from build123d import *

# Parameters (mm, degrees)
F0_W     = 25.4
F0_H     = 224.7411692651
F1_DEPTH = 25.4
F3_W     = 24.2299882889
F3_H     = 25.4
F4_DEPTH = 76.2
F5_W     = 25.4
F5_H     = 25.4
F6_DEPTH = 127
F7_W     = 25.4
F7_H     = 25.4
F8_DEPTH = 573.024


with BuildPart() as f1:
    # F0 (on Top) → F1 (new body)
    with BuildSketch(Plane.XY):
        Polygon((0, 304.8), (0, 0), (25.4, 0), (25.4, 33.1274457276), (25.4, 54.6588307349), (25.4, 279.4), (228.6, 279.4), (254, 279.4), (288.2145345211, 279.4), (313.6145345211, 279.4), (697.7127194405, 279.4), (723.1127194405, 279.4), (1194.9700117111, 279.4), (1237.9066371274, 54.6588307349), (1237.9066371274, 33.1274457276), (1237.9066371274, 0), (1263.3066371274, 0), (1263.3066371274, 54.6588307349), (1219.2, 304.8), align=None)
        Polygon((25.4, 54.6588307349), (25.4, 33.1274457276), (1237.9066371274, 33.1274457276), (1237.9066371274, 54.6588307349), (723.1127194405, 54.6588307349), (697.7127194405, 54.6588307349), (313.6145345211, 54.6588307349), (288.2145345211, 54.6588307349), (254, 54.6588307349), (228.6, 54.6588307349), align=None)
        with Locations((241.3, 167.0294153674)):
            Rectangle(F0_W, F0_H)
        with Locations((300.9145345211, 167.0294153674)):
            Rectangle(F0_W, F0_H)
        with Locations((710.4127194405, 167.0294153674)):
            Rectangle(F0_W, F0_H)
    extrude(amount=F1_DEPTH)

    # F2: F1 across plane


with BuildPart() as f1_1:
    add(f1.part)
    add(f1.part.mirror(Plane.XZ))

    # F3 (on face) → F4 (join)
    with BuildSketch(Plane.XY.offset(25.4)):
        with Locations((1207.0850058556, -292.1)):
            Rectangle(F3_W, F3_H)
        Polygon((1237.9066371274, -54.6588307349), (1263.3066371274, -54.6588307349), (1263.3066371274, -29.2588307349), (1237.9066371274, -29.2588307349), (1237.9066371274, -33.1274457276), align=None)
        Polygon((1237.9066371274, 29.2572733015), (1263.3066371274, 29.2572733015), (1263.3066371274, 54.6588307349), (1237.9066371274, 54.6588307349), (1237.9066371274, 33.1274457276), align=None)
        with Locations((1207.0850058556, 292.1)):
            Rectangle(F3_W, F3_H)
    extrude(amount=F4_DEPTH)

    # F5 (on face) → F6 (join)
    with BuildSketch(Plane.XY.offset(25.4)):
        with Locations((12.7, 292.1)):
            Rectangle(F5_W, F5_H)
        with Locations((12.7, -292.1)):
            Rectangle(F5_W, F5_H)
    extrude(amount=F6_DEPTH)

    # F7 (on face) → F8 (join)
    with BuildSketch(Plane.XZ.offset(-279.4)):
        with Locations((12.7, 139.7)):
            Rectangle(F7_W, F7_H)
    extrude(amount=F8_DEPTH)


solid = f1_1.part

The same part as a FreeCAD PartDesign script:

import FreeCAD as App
import Part
import Sketcher
from FreeCAD import Vector
Q = App.Units.Quantity

doc = App.newDocument("Part")
body = doc.addObject("PartDesign::Body", "Body")

# Sketch on XY plane
sketch1 = body.newObject("Sketcher::SketchObject", "Sketch")
sketch1.AttachmentSupport = (doc.getObject("XY_Plane"), [""])
sketch1.MapMode = "FlatFace"
sketch1.addGeometry(Part.LineSegment(Vector(0, 304.8, 0), Vector(0, 0, 0)), False)
sketch1.addGeometry(Part.LineSegment(Vector(0, 0, 0), Vector(25.4, 0, 0)), False)
sketch1.addGeometry(Part.LineSegment(Vector(25.4, 0, 0), Vector(25.4, 33.127446, 0)), False)
sketch1.addGeometry(Part.LineSegment(Vector(25.4, 33.127446, 0), Vector(1237.906637, 33.127446, 0)), False)
sketch1.addGeometry(Part.LineSegment(Vector(1237.906637, 33.127446, 0), Vector(1237.906637, 0, 0)), False)
sketch1.addGeometry(Part.LineSegment(Vector(1237.906637, 0, 0), Vector(1263.306637, 0, 0)), False)
sketch1.addGeometry(Part.LineSegment(Vector(1263.306637, 0, 0), Vector(1263.306637, 54.658831, 0)), False)
sketch1.addGeometry(Part.LineSegment(Vector(1263.306637, 54.658831, 0), Vector(1219.2, 304.8, 0)), False)
sketch1.addGeometry(Part.LineSegment(Vector(1219.2, 304.8, 0), Vector(0, 304.8, 0)), False)
sketch1.addGeometry(Part.LineSegment(Vector(25.4, 54.658831, 0), Vector(25.4, 279.4, 0)), False)
sketch1.addGeometry(Part.LineSegment(Vector(25.4, 279.4, 0), Vector(228.6, 279.4, 0)), False)
sketch1.addGeometry(Part.LineSegment(Vector(228.6, 279.4, 0), Vector(228.6, 54.658831, 0)), False)
sketch1.addGeometry(Part.LineSegment(Vector(228.6, 54.658831, 0), Vector(25.4, 54.658831, 0)), False)
sketch1.addGeometry(Part.LineSegment(Vector(254, 279.4, 0), Vector(288.214535, 279.4, 0)), False)
sketch1.addGeometry(Part.LineSegment(Vector(288.214535, 279.4, 0), Vector(288.214535, 54.658831, 0)), False)
sketch1.addGeometry(Part.LineSegment(Vector(288.214535, 54.658831, 0), Vector(254, 54.658831, 0)), False)
sketch1.addGeometry(Part.LineSegment(Vector(254, 54.658831, 0), Vector(254, 279.4, 0)), False)
sketch1.addGeometry(Part.LineSegment(Vector(313.614535, 279.4, 0), Vector(697.712719, 279.4, 0)), False)
sketch1.addGeometry(Part.LineSegment(Vector(697.712719, 279.4, 0), Vector(697.712719, 54.658831, 0)), False)
sketch1.addGeometry(Part.LineSegment(Vector(697.712719, 54.658831, 0), Vector(313.614535, 54.658831, 0)), False)
sketch1.addGeometry(Part.LineSegment(Vector(313.614535, 54.658831, 0), Vector(313.614535, 279.4, 0)), False)
sketch1.addGeometry(Part.LineSegment(Vector(723.112719, 279.4, 0), Vector(1194.970012, 279.4, 0)), False)
sketch1.addGeometry(Part.LineSegment(Vector(1194.970012, 279.4, 0), Vector(1237.906637, 54.658831, 0)), False)
sketch1.addGeometry(Part.LineSegment(Vector(1237.906637, 54.658831, 0), Vector(723.112719, 54.658831, 0)), False)
sketch1.addGeometry(Part.LineSegment(Vector(723.112719, 54.658831, 0), Vector(723.112719, 279.4, 0)), False)
sketch1.addConstraint(Sketcher.Constraint("Coincident", 0, 2, 1, 1))
sketch1.addConstraint(Sketcher.Constraint("Coincident", 1, 2, 2, 1))
sketch1.addConstraint(Sketcher.Constraint("Coincident", 2, 2, 3, 1))
sketch1.addConstraint(Sketcher.Constraint("Coincident", 3, 2, 4, 1))
sketch1.addConstraint(Sketcher.Constraint("Coincident", 4, 2, 5, 1))
sketch1.addConstraint(Sketcher.Constraint("Coincident", 5, 2, 6, 1))
sketch1.addConstraint(Sketcher.Constraint("Coincident", 6, 2, 7, 1))
sketch1.addConstraint(Sketcher.Constraint("Coincident", 7, 2, 8, 1))
sketch1.addConstraint(Sketcher.Constraint("Coincident", 8, 2, 0, 1))
sketch1.addConstraint(Sketcher.Constraint("Coincident", 9, 2, 10, 1))
sketch1.addConstraint(Sketcher.Constraint("Coincident", 10, 2, 11, 1))
sketch1.addConstraint(Sketcher.Constraint("Coincident", 11, 2, 12, 1))
sketch1.addConstraint(Sketcher.Constraint("Coincident", 12, 2, 9, 1))
sketch1.addConstraint(Sketcher.Constraint("Coincident", 13, 2, 14, 1))
sketch1.addConstraint(Sketcher.Constraint("Coincident", 14, 2, 15, 1))
sketch1.addConstraint(Sketcher.Constraint("Coincident", 15, 2, 16, 1))
sketch1.addConstraint(Sketcher.Constraint("Coincident", 16, 2, 13, 1))
sketch1.addConstraint(Sketcher.Constraint("Coincident", 17, 2, 18, 1))
sketch1.addConstraint(Sketcher.Constraint("Coincident", 18, 2, 19, 1))
sketch1.addConstraint(Sketcher.Constraint("Coincident", 19, 2, 20, 1))
sketch1.addConstraint(Sketcher.Constraint("Coincident", 20, 2, 17, 1))
sketch1.addConstraint(Sketcher.Constraint("Coincident", 21, 2, 22, 1))
sketch1.addConstraint(Sketcher.Constraint("Coincident", 22, 2, 23, 1))
sketch1.addConstraint(Sketcher.Constraint("Coincident", 23, 2, 24, 1))
sketch1.addConstraint(Sketcher.Constraint("Coincident", 24, 2, 21, 1))
sketch1.addConstraint(Sketcher.Constraint("Vertical", 0))
sketch1.addConstraint(Sketcher.Constraint("Horizontal", 1))
sketch1.addConstraint(Sketcher.Constraint("Vertical", 2))
sketch1.addConstraint(Sketcher.Constraint("Horizontal", 3))
sketch1.addConstraint(Sketcher.Constraint("Vertical", 4))
sketch1.addConstraint(Sketcher.Constraint("Horizontal", 5))
sketch1.addConstraint(Sketcher.Constraint("Vertical", 6))
sketch1.addConstraint(Sketcher.Constraint("Horizontal", 8))
sketch1.addConstraint(Sketcher.Constraint("Vertical", 9))
sketch1.addConstraint(Sketcher.Constraint("Horizontal", 10))
sketch1.addConstraint(Sketcher.Constraint("Vertical", 11))
sketch1.addConstraint(Sketcher.Constraint("Horizontal", 12))
sketch1.addConstraint(Sketcher.Constraint("Horizontal", 13))
sketch1.addConstraint(Sketcher.Constraint("Vertical", 14))
sketch1.addConstraint(Sketcher.Constraint("Horizontal", 15))
sketch1.addConstraint(Sketcher.Constraint("Vertical", 16))
sketch1.addConstraint(Sketcher.Constraint("Horizontal", 17))
sketch1.addConstraint(Sketcher.Constraint("Vertical", 18))
sketch1.addConstraint(Sketcher.Constraint("Horizontal", 19))
sketch1.addConstraint(Sketcher.Constraint("Vertical", 20))
sketch1.addConstraint(Sketcher.Constraint("Horizontal", 21))
sketch1.addConstraint(Sketcher.Constraint("Horizontal", 23))
sketch1.addConstraint(Sketcher.Constraint("Vertical", 24))
sketch1.addConstraint(Sketcher.Constraint("Coincident", 0, 2, -1, 1))
sketch1.addConstraint(Sketcher.Constraint("PointOnObject", 4, 2, -1))
sketch1.addConstraint(Sketcher.Constraint("Horizontal", 6, 2, 11, 2))
sketch1.addConstraint(Sketcher.Constraint("Horizontal", 10, 2, 13, 2))
sketch1.addConstraint(Sketcher.Constraint("Horizontal", 12, 2, 14, 2))
sketch1.addConstraint(Sketcher.Constraint("Horizontal", 16, 2, 17, 2))
sketch1.addConstraint(Sketcher.Constraint("Horizontal", 15, 2, 18, 2))
sketch1.addConstraint(Sketcher.Constraint("Horizontal", 20, 2, 21, 2))
sketch1.addConstraint(Sketcher.Constraint("Horizontal", 19, 2, 22, 2))
sketch1.addConstraint(Sketcher.Constraint("Vertical", 2, 2, 9, 2))
sketch1.addConstraint(Sketcher.Constraint("Vertical", 4, 2, 22, 2))
sketch1.addConstraint(Sketcher.Constraint("Equal", 1, 5))
sketch1.addConstraint(Sketcher.Constraint("DistanceX", 1, 1, 1, 2, Q("1 in")))
sketch1.addConstraint(Sketcher.Constraint("DistanceX", 8, 2, 8, 1, Q("48 in")))
sketch1.addConstraint(Sketcher.Constraint("DistanceX", 10, 1, 10, 2, Q("8 in")))
sketch1.addConstraint(Sketcher.Constraint("DistanceY", 0, 2, 0, 1, Q("12 in")))
sketch1.addConstraint(Sketcher.Constraint("Distance", 7, Q("10 in")))
sketch1.addConstraint(Sketcher.Constraint("DistanceY", -1, 1, 9, 2, Q("11 in")))
sketch1.addConstraint(Sketcher.Constraint("DistanceX", -1, 1, 15, 2, Q("10 in")))
sketch1.addConstraint(Sketcher.Constraint("Angle", 7, Q("100 deg")))
sketch1.addConstraint(Sketcher.Constraint("DistanceX", 14, 2, 19, 2, Q("1 in")))
sketch1.addConstraint(Sketcher.Constraint("DistanceX", 18, 2, 23, 2, Q("1 in")))
sketch1.addConstraint(Sketcher.Constraint("DistanceX", 13, 1, 13, 2, 34.214535))
sketch1.addConstraint(Sketcher.Constraint("DistanceX", 17, 1, 17, 2, 384.098185))
sketch1.addConstraint(Sketcher.Constraint("DistanceX", 21, 1, 21, 2, 471.857292))
sketch1.addConstraint(Sketcher.Constraint("DistanceY", 2, 1, 2, 2, 33.127446))
pad1 = body.newObject("PartDesign::Pad", "Pad")
pad1.Profile = sketch1
pad1.Length = Q("1 in")
body2 = doc.addObject("PartDesign::Body", "Body001")
doc.recompute()

body2.BaseFeature = body
doc.recompute()

mirroring = doc.addObject("Part::Mirroring", "Mirroring")
mirroring.Source = body
mirroring.Base = Vector(0, 0, 0)
mirroring.Normal = Vector(0, -1, 0)
body3 = doc.addObject("PartDesign::Body", "Body002")
body3.BaseFeature = mirroring
boolean = body2.newObject("PartDesign::Boolean", "Boolean")
boolean.Type = "Fuse"
boolean.addObjects([body3])
doc.recompute()

# Sketch on XY plane
sketch2 = body2.newObject("Sketcher::SketchObject", "Sketch001")
sketch2.AttachmentSupport = (doc.getObject("XY_Plane001"), [""])
sketch2.MapMode = "FlatFace"
sketch2.AttachmentOffset = App.Placement(Vector(0, 0, 1 * 25.4), App.Rotation())
sketch2.addGeometry(Part.LineSegment(Vector(1194.970012, -279.4, 0), Vector(1194.970012, -304.8, 0)), False)
sketch2.addGeometry(Part.LineSegment(Vector(1194.970012, -304.8, 0), Vector(1219.2, -304.8, 0)), False)
sketch2.addGeometry(Part.LineSegment(Vector(1219.2, -304.8, 0), Vector(1219.2, -279.4, 0)), False)
sketch2.addGeometry(Part.LineSegment(Vector(1219.2, -279.4, 0), Vector(1194.970012, -279.4, 0)), False)
sketch2.addGeometry(Part.LineSegment(Vector(1237.906637, -54.658831, 0), Vector(1263.306637, -54.658831, 0)), False)
sketch2.addGeometry(Part.LineSegment(Vector(1263.306637, -54.658831, 0), Vector(1263.306637, -29.258831, 0)), False)
sketch2.addGeometry(Part.LineSegment(Vector(1263.306637, -29.258831, 0), Vector(1237.906637, -29.258831, 0)), False)
sketch2.addGeometry(Part.LineSegment(Vector(1237.906637, -29.258831, 0), Vector(1237.906637, -54.658831, 0)), False)
sketch2.addGeometry(Part.LineSegment(Vector(1237.906637, 29.257273, 0), Vector(1263.306637, 29.257273, 0)), False)
sketch2.addGeometry(Part.LineSegment(Vector(1263.306637, 29.257273, 0), Vector(1263.306637, 54.658831, 0)), False)
sketch2.addGeometry(Part.LineSegment(Vector(1263.306637, 54.658831, 0), Vector(1237.906637, 54.658831, 0)), False)
sketch2.addGeometry(Part.LineSegment(Vector(1237.906637, 54.658831, 0), Vector(1237.906637, 29.257273, 0)), False)
sketch2.addGeometry(Part.LineSegment(Vector(1194.970012, 304.8, 0), Vector(1194.970012, 279.4, 0)), False)
sketch2.addGeometry(Part.LineSegment(Vector(1194.970012, 279.4, 0), Vector(1219.2, 279.4, 0)), False)
sketch2.addGeometry(Part.LineSegment(Vector(1219.2, 279.4, 0), Vector(1219.2, 304.8, 0)), False)
sketch2.addGeometry(Part.LineSegment(Vector(1219.2, 304.8, 0), Vector(1194.970012, 304.8, 0)), False)
sketch2.addConstraint(Sketcher.Constraint("Coincident", 0, 2, 1, 1))
sketch2.addConstraint(Sketcher.Constraint("Coincident", 1, 2, 2, 1))
sketch2.addConstraint(Sketcher.Constraint("Coincident", 2, 2, 3, 1))
sketch2.addConstraint(Sketcher.Constraint("Coincident", 3, 2, 0, 1))
sketch2.addConstraint(Sketcher.Constraint("Coincident", 4, 2, 5, 1))
sketch2.addConstraint(Sketcher.Constraint("Coincident", 5, 2, 6, 1))
sketch2.addConstraint(Sketcher.Constraint("Coincident", 6, 2, 7, 1))
sketch2.addConstraint(Sketcher.Constraint("Coincident", 7, 2, 4, 1))
sketch2.addConstraint(Sketcher.Constraint("Coincident", 8, 2, 9, 1))
sketch2.addConstraint(Sketcher.Constraint("Coincident", 9, 2, 10, 1))
sketch2.addConstraint(Sketcher.Constraint("Coincident", 10, 2, 11, 1))
sketch2.addConstraint(Sketcher.Constraint("Coincident", 11, 2, 8, 1))
sketch2.addConstraint(Sketcher.Constraint("Coincident", 12, 2, 13, 1))
sketch2.addConstraint(Sketcher.Constraint("Coincident", 13, 2, 14, 1))
sketch2.addConstraint(Sketcher.Constraint("Coincident", 14, 2, 15, 1))
sketch2.addConstraint(Sketcher.Constraint("Coincident", 15, 2, 12, 1))
sketch2.addConstraint(Sketcher.Constraint("Vertical", 0))
sketch2.addConstraint(Sketcher.Constraint("Horizontal", 1))
sketch2.addConstraint(Sketcher.Constraint("Vertical", 2))
sketch2.addConstraint(Sketcher.Constraint("Horizontal", 3))
sketch2.addConstraint(Sketcher.Constraint("Horizontal", 4))
sketch2.addConstraint(Sketcher.Constraint("Vertical", 5))
sketch2.addConstraint(Sketcher.Constraint("Horizontal", 6))
sketch2.addConstraint(Sketcher.Constraint("Vertical", 7))
sketch2.addConstraint(Sketcher.Constraint("Horizontal", 8))
sketch2.addConstraint(Sketcher.Constraint("Vertical", 9))
sketch2.addConstraint(Sketcher.Constraint("Horizontal", 10))
sketch2.addConstraint(Sketcher.Constraint("Vertical", 11))
sketch2.addConstraint(Sketcher.Constraint("Vertical", 12))
sketch2.addConstraint(Sketcher.Constraint("Horizontal", 13))
sketch2.addConstraint(Sketcher.Constraint("Vertical", 14))
sketch2.addConstraint(Sketcher.Constraint("Horizontal", 15))
sketch2.addConstraint(Sketcher.Constraint("Symmetric", 4, 2, 9, 2, -1))
sketch2.addConstraint(Sketcher.Constraint("Symmetric", 3, 2, 12, 2, -1))
sketch2.addConstraint(Sketcher.Constraint("Symmetric", 1, 2, 14, 2, -1))
sketch2.addConstraint(Sketcher.Constraint("Vertical", 7, 2, 10, 2))
sketch2.addConstraint(Sketcher.Constraint("Equal", 10, 0))
sketch2.addConstraint(Sketcher.Constraint("Equal", 2, 5))
sketch2.addConstraint(Sketcher.Constraint("DistanceX", 4, 1, 4, 2, Q("1 in")))
sketch2.addConstraint(Sketcher.Constraint("DistanceY", 0, 2, -1, 1, Q("12 in")))
sketch2.addConstraint(Sketcher.Constraint("DistanceX", -1, 1, 1, 2, Q("48 in")))
sketch2.addConstraint(Sketcher.Constraint("DistanceX", 1, 1, 1, 2, 24.229988))
sketch2.addConstraint(Sketcher.Constraint("DistanceY", 9, 1, 9, 2, 25.401557))
sketch2.addConstraint(Sketcher.Constraint("DistanceY", 4, 2, -1, 1, 54.658831))
sketch2.addConstraint(Sketcher.Constraint("DistanceX", -1, 1, 4, 2, 1263.306637))
pad2 = body2.newObject("PartDesign::Pad", "Pad001")
pad2.Profile = sketch2
pad2.Length = Q("3 in")

# Sketch on XY plane
sketch3 = body2.newObject("Sketcher::SketchObject", "Sketch002")
sketch3.AttachmentSupport = (doc.getObject("XY_Plane001"), [""])
sketch3.MapMode = "FlatFace"
sketch3.AttachmentOffset = App.Placement(Vector(0, 0, 1 * 25.4), App.Rotation())
sketch3.addGeometry(Part.LineSegment(Vector(0, 304.8, 0), Vector(0, 279.4, 0)), False)
sketch3.addGeometry(Part.LineSegment(Vector(0, 279.4, 0), Vector(25.4, 279.4, 0)), False)
sketch3.addGeometry(Part.LineSegment(Vector(25.4, 279.4, 0), Vector(25.4, 304.8, 0)), False)
sketch3.addGeometry(Part.LineSegment(Vector(25.4, 304.8, 0), Vector(0, 304.8, 0)), False)
sketch3.addGeometry(Part.LineSegment(Vector(0, -279.4, 0), Vector(0, -304.8, 0)), False)
sketch3.addGeometry(Part.LineSegment(Vector(0, -304.8, 0), Vector(25.4, -304.8, 0)), False)
sketch3.addGeometry(Part.LineSegment(Vector(25.4, -304.8, 0), Vector(25.4, -279.4, 0)), False)
sketch3.addGeometry(Part.LineSegment(Vector(25.4, -279.4, 0), Vector(0, -279.4, 0)), False)
sketch3.addConstraint(Sketcher.Constraint("Coincident", 0, 2, 1, 1))
sketch3.addConstraint(Sketcher.Constraint("Coincident", 1, 2, 2, 1))
sketch3.addConstraint(Sketcher.Constraint("Coincident", 2, 2, 3, 1))
sketch3.addConstraint(Sketcher.Constraint("Coincident", 3, 2, 0, 1))
sketch3.addConstraint(Sketcher.Constraint("Coincident", 4, 2, 5, 1))
sketch3.addConstraint(Sketcher.Constraint("Coincident", 5, 2, 6, 1))
sketch3.addConstraint(Sketcher.Constraint("Coincident", 6, 2, 7, 1))
sketch3.addConstraint(Sketcher.Constraint("Coincident", 7, 2, 4, 1))
sketch3.addConstraint(Sketcher.Constraint("Vertical", 0))
sketch3.addConstraint(Sketcher.Constraint("Horizontal", 1))
sketch3.addConstraint(Sketcher.Constraint("Vertical", 2))
sketch3.addConstraint(Sketcher.Constraint("Horizontal", 3))
sketch3.addConstraint(Sketcher.Constraint("Vertical", 4))
sketch3.addConstraint(Sketcher.Constraint("Horizontal", 5))
sketch3.addConstraint(Sketcher.Constraint("Vertical", 6))
sketch3.addConstraint(Sketcher.Constraint("Horizontal", 7))
sketch3.addConstraint(Sketcher.Constraint("Symmetric", 3, 2, 4, 2, -1, 1))
sketch3.addConstraint(Sketcher.Constraint("Symmetric", 1, 2, 6, 2, -1))
sketch3.addConstraint(Sketcher.Constraint("PointOnObject", 0, 2, -2))
sketch3.addConstraint(Sketcher.Constraint("Equal", 7, 0))
sketch3.addConstraint(Sketcher.Constraint("DistanceX", 1, 1, 1, 2, Q("1 in")))
sketch3.addConstraint(Sketcher.Constraint("DistanceY", -1, 1, 0, 2, Q("11 in")))
pad3 = body2.newObject("PartDesign::Pad", "Pad002")
pad3.Profile = sketch3
pad3.Length = Q("5 in")

# Sketch on XZ plane
sketch4 = body2.newObject("Sketcher::SketchObject", "Sketch003")
sketch4.AttachmentSupport = (doc.getObject("XZ_Plane001"), [""])
sketch4.MapMode = "FlatFace"
sketch4.AttachmentOffset = App.Placement(Vector(0, 0, -11 * 25.4), App.Rotation())
sketch4.addGeometry(Part.LineSegment(Vector(0, 152.4, 0), Vector(0, 127, 0)), False)
sketch4.addGeometry(Part.LineSegment(Vector(0, 127, 0), Vector(25.4, 127, 0)), False)
sketch4.addGeometry(Part.LineSegment(Vector(25.4, 127, 0), Vector(25.4, 152.4, 0)), False)
sketch4.addGeometry(Part.LineSegment(Vector(25.4, 152.4, 0), Vector(0, 152.4, 0)), False)
sketch4.addConstraint(Sketcher.Constraint("Coincident", 0, 2, 1, 1))
sketch4.addConstraint(Sketcher.Constraint("Coincident", 1, 2, 2, 1))
sketch4.addConstraint(Sketcher.Constraint("Coincident", 2, 2, 3, 1))
sketch4.addConstraint(Sketcher.Constraint("Coincident", 3, 2, 0, 1))
sketch4.addConstraint(Sketcher.Constraint("Vertical", 0))
sketch4.addConstraint(Sketcher.Constraint("Horizontal", 1))
sketch4.addConstraint(Sketcher.Constraint("Vertical", 2))
sketch4.addConstraint(Sketcher.Constraint("Horizontal", 3))
sketch4.addConstraint(Sketcher.Constraint("PointOnObject", 0, 2, -2))
sketch4.addConstraint(Sketcher.Constraint("Equal", 3, 0))
sketch4.addConstraint(Sketcher.Constraint("DistanceX", 1, 1, 1, 2, Q("1 in")))
sketch4.addConstraint(Sketcher.Constraint("DistanceY", -1, 1, 0, 2, Q("5 in")))
pad4 = body2.newObject("PartDesign::Pad", "Pad003")
pad4.Profile = sketch4
pad4.Length = Q("22.56 in")
mirroring.Visibility = False

doc.recompute()
